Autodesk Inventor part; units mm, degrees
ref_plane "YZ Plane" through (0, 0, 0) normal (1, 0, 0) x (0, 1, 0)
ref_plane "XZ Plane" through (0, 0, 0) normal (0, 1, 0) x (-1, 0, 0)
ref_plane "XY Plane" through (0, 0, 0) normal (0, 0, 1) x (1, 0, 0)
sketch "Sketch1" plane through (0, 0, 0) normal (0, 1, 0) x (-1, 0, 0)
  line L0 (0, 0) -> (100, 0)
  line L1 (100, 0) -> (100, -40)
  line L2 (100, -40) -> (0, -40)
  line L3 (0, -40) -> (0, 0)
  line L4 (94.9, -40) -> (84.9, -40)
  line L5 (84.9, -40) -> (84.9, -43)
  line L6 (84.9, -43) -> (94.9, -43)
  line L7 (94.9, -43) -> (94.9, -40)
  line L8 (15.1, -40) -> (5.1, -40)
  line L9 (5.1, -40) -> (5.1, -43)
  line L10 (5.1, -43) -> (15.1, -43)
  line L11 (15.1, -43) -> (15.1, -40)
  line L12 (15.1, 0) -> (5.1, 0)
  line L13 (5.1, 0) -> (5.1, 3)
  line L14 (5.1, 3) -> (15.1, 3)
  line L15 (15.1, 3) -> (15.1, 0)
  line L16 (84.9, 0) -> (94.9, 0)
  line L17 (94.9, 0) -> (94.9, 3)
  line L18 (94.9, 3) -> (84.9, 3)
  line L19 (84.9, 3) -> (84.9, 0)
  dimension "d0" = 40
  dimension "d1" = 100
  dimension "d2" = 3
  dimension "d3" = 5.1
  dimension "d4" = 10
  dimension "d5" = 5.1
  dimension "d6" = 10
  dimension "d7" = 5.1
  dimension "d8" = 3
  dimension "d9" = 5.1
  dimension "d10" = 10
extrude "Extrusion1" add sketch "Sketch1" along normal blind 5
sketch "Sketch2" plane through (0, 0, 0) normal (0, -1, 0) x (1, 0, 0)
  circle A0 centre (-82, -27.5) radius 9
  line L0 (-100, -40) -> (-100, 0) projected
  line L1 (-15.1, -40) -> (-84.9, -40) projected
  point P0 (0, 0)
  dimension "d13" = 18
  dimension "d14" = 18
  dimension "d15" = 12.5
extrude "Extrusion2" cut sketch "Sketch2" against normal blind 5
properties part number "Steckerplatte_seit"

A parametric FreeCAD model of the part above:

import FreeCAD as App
import Part
import Sketcher
Q = App.Units.Quantity


def add_polygon(sketch, points):
    """Adds a closed chain of lines whose ends are joined by coincident constraints."""
    first, n = sketch.GeometryCount, len(points)
    for a, b in zip(points, points[1:] + points[:1]):
        sketch.addGeometry(Part.LineSegment(App.Vector(*a, 0), App.Vector(*b, 0)), False)
    for i in range(n):
        sketch.addConstraint(Sketcher.Constraint("Coincident", first + i, 2, first + (i + 1) % n, 1))

doc = App.newDocument("Part")
body = doc.addObject("PartDesign::Body", "Body")

# Sketch on XZ plane
sketch1 = doc.addObject("Sketcher::SketchObject", "Sketch")
body.addObject(sketch1)
sketch1.AttachmentSupport = (doc.XZ_Plane, [""])
sketch1.MapMode = "FlatFace"
add_polygon(sketch1, [(-5.1, 0), (0, 0), (0, -40), (-5.1, -40), (-5.1, -43), (-15.1, -43), (-15.1, -40), (-84.9, -40), (-84.9, -43), (-94.9, -43), (-94.9, -40), (-100, -40), (-100, 0), (-94.9, 0), (-94.9, 3), (-84.9, 3), (-84.9, 0), (-15.1, 0), (-15.1, 3), (-5.1, 3)])  # lines 0-19
sketch1.addConstraint(Sketcher.Constraint("Horizontal", 0))
sketch1.addConstraint(Sketcher.Constraint("Vertical", 1))
sketch1.addConstraint(Sketcher.Constraint("Horizontal", 2))
sketch1.addConstraint(Sketcher.Constraint("Vertical", 3))
sketch1.addConstraint(Sketcher.Constraint("Horizontal", 4))
sketch1.addConstraint(Sketcher.Constraint("Vertical", 5))
sketch1.addConstraint(Sketcher.Constraint("Horizontal", 6))
sketch1.addConstraint(Sketcher.Constraint("Vertical", 7))
sketch1.addConstraint(Sketcher.Constraint("Horizontal", 8))
sketch1.addConstraint(Sketcher.Constraint("Vertical", 9))
sketch1.addConstraint(Sketcher.Constraint("Horizontal", 10))
sketch1.addConstraint(Sketcher.Constraint("Vertical", 11))
sketch1.addConstraint(Sketcher.Constraint("Horizontal", 12))
sketch1.addConstraint(Sketcher.Constraint("Vertical", 13))
sketch1.addConstraint(Sketcher.Constraint("Horizontal", 14))
sketch1.addConstraint(Sketcher.Constraint("Vertical", 15))
sketch1.addConstraint(Sketcher.Constraint("Horizontal", 16))
sketch1.addConstraint(Sketcher.Constraint("Vertical", 17))
sketch1.addConstraint(Sketcher.Constraint("Horizontal", 18))
sketch1.addConstraint(Sketcher.Constraint("Vertical", 19))
sketch1.addConstraint(Sketcher.Constraint("Coincident", 0, 2, -1, 1))
sketch1.addConstraint(Sketcher.Constraint("PointOnObject", 11, 2, -1))
sketch1.addConstraint(Sketcher.Constraint("PointOnObject", 15, 2, -1))
sketch1.addConstraint(Sketcher.Constraint("Horizontal", 2, 2, 5, 2))
sketch1.addConstraint(Sketcher.Constraint("Horizontal", 4, 2, 7, 2))
sketch1.addConstraint(Sketcher.Constraint("Horizontal", 6, 2, 9, 2))
sketch1.addConstraint(Sketcher.Constraint("Horizontal", 14, 2, 17, 2))
sketch1.addConstraint(Sketcher.Constraint("Vertical", 9, 2, 12, 2))
sketch1.addConstraint(Sketcher.Constraint("Vertical", 7, 2, 14, 2))
sketch1.addConstraint(Sketcher.Constraint("Vertical", 5, 2, 16, 2))
sketch1.addConstraint(Sketcher.Constraint("Vertical", 3, 2, 18, 2))
sketch1.addConstraint(Sketcher.Constraint("Equal", 4, 8))
sketch1.addConstraint(Sketcher.Constraint("Equal", 2, 10))
sketch1.addConstraint(Sketcher.Constraint("Equal", 9, 13))
sketch1.addConstraint(Sketcher.Constraint("DistanceX", 4, 2, 4, 1, Q("10 mm")))
sketch1.addConstraint(Sketcher.Constraint("DistanceY", 1, 2, 1, 1, Q("40 mm")))
sketch1.addConstraint(Sketcher.Constraint("DistanceY", 3, 2, 3, 1, Q("3 mm")))
sketch1.addConstraint(Sketcher.Constraint("DistanceX", 0, 1, 0, 2, Q("5.1 mm")))
sketch1.addConstraint(Sketcher.Constraint("DistanceX", 10, 2, -1, 1, Q("100 mm")))
pad1 = doc.addObject("PartDesign::Pad", "Pad")
body.addObject(pad1)
pad1.Profile = sketch1
pad1.Length = 5
pad1.Reversed = True

# Sketch on XZ plane
sketch2 = doc.addObject("Sketcher::SketchObject", "Sketch001")
body.addObject(sketch2)
sketch2.AttachmentSupport = (doc.XZ_Plane, [""])
sketch2.MapMode = "FlatFace"
sketch2.addGeometry(Part.Circle(App.Vector(-82, -28, 0), App.Vector(0, 0, 1), 9), False)
sketch2.addConstraint(Sketcher.Constraint("Diameter", 0, Q("18 mm")))
sketch2.addConstraint(Sketcher.Constraint("DistanceX", 0, 3, -1, 1, Q("82 mm")))
sketch2.addConstraint(Sketcher.Constraint("DistanceY", 0, 3, -1, 1, Q("27.5 mm")))
pocket1 = doc.addObject("PartDesign::Pocket", "Pocket")
body.addObject(pocket1)
pocket1.Profile = sketch2
pocket1.Length = 5

doc.recompute()
